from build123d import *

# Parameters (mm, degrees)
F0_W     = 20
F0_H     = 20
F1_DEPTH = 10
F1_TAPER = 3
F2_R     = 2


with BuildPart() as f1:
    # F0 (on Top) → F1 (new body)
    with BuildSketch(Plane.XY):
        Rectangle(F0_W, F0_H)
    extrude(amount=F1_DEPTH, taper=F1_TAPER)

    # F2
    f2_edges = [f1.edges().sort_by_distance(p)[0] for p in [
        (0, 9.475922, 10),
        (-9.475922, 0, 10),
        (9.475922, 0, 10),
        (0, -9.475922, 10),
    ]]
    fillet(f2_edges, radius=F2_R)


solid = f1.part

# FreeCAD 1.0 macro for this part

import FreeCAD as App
import Part
import Sketcher

V = App.Vector


def edges_at(feature, points):
    """Names of the edges that pass closest to the given points."""
    edges = feature.Shape.Edges
    near = lambda p: min(range(len(edges)), key=lambda i: edges[i].distToShape(Part.Vertex(*p))[0])
    return sorted({f"Edge{near(p) + 1}" for p in points})

doc = App.newDocument("Part")
params = doc.addObject("Spreadsheet::Sheet", "Params")
for row, (alias, value) in enumerate([
    ("sketch1_width", "20 mm"),
    ("pad1_length", "10 mm"),
    ("pad1_taper", "-3 deg"),
    ("fillet_radius", "2 mm"),
], start=1):
    params.set(f"A{row}", alias)
    params.set(f"B{row}", "=" + value)
    params.setAlias(f"B{row}", alias)

body = doc.addObject("PartDesign::Body", "Body")

# Sketch on XY plane
sketch1 = body.newObject("Sketcher::SketchObject", "Sketch")
sketch1.AttachmentSupport = (doc.getObject("XY_Plane"), [""])
sketch1.MapMode = "FlatFace"
sketch1.addGeometry([
    Part.LineSegment(V(-10, 10, 0), V(-10, -10, 0)),
    Part.LineSegment(V(-10, -10, 0), V(10, -10, 0)),
    Part.LineSegment(V(10, -10, 0), V(10, 10, 0)),
    Part.LineSegment(V(10, 10, 0), V(-10, 10, 0)),
], False)
sketch1.addConstraint([
    Sketcher.Constraint("Coincident", 0, 2, 1, 1),
    Sketcher.Constraint("Coincident", 1, 2, 2, 1),
    Sketcher.Constraint("Coincident", 2, 2, 3, 1),
    Sketcher.Constraint("Coincident", 3, 2, 0, 1),
    Sketcher.Constraint("Vertical", 0),
    Sketcher.Constraint("Horizontal", 1),
    Sketcher.Constraint("Vertical", 2),
    Sketcher.Constraint("Horizontal", 3),
    Sketcher.Constraint("Symmetric", 0, 2, 2, 2, -1, 1),
    Sketcher.Constraint("Equal", 3, 0),
    Sketcher.Constraint("DistanceX", 1, 1, 1, 2, 20.0),
])
sketch1.setExpression("Constraints[10]", "Params.sketch1_width")
pad1 = body.newObject("PartDesign::Pad", "Pad")
pad1.Profile = sketch1
pad1.setExpression("Length", "Params.pad1_length")
pad1.setExpression("TaperAngle", "Params.pad1_taper")
doc.recompute()

fillet = body.newObject("PartDesign::Fillet", "Fillet")
fillet.Base = (pad1, edges_at(pad1, [
    (0, 9.476, 10),
    (-9.476, 0, 10),
    (9.476, 0, 10),
    (0, -9.476, 10),
]))
fillet.setExpression("Radius", "Params.fillet_radius")

doc.recompute()
